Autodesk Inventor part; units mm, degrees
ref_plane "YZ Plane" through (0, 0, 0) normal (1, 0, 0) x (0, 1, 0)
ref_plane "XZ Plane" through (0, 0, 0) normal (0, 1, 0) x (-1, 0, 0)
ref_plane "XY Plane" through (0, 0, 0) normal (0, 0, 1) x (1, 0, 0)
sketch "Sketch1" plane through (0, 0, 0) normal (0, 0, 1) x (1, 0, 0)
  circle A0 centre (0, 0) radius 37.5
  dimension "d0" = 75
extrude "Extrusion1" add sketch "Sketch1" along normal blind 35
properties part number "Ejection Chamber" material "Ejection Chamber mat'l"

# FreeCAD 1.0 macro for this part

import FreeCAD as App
import Part
import Sketcher
from FreeCAD import Vector

doc = App.newDocument("Part")
body = doc.addObject("PartDesign::Body", "Body")

sketch1 = doc.addObject("Sketcher::SketchObject", "Sketch")
body.addObject(sketch1)
sketch1.AttachmentSupport = (doc.XY_Plane, [""])
sketch1.MapMode = "FlatFace"
sketch1.addGeometry(Part.Circle(Vector(0, 0, 0), Vector(0, 0, 1), 38), False)
sketch1.addConstraint(Sketcher.Constraint("Coincident", 0, 3, -1, 1))
sketch1.addConstraint(Sketcher.Constraint("Diameter", 0, 75.0))
pad1 = doc.addObject("PartDesign::Pad", "Pad")
body.addObject(pad1)
pad1.Profile = sketch1
pad1.Length = 35

doc.recompute()
